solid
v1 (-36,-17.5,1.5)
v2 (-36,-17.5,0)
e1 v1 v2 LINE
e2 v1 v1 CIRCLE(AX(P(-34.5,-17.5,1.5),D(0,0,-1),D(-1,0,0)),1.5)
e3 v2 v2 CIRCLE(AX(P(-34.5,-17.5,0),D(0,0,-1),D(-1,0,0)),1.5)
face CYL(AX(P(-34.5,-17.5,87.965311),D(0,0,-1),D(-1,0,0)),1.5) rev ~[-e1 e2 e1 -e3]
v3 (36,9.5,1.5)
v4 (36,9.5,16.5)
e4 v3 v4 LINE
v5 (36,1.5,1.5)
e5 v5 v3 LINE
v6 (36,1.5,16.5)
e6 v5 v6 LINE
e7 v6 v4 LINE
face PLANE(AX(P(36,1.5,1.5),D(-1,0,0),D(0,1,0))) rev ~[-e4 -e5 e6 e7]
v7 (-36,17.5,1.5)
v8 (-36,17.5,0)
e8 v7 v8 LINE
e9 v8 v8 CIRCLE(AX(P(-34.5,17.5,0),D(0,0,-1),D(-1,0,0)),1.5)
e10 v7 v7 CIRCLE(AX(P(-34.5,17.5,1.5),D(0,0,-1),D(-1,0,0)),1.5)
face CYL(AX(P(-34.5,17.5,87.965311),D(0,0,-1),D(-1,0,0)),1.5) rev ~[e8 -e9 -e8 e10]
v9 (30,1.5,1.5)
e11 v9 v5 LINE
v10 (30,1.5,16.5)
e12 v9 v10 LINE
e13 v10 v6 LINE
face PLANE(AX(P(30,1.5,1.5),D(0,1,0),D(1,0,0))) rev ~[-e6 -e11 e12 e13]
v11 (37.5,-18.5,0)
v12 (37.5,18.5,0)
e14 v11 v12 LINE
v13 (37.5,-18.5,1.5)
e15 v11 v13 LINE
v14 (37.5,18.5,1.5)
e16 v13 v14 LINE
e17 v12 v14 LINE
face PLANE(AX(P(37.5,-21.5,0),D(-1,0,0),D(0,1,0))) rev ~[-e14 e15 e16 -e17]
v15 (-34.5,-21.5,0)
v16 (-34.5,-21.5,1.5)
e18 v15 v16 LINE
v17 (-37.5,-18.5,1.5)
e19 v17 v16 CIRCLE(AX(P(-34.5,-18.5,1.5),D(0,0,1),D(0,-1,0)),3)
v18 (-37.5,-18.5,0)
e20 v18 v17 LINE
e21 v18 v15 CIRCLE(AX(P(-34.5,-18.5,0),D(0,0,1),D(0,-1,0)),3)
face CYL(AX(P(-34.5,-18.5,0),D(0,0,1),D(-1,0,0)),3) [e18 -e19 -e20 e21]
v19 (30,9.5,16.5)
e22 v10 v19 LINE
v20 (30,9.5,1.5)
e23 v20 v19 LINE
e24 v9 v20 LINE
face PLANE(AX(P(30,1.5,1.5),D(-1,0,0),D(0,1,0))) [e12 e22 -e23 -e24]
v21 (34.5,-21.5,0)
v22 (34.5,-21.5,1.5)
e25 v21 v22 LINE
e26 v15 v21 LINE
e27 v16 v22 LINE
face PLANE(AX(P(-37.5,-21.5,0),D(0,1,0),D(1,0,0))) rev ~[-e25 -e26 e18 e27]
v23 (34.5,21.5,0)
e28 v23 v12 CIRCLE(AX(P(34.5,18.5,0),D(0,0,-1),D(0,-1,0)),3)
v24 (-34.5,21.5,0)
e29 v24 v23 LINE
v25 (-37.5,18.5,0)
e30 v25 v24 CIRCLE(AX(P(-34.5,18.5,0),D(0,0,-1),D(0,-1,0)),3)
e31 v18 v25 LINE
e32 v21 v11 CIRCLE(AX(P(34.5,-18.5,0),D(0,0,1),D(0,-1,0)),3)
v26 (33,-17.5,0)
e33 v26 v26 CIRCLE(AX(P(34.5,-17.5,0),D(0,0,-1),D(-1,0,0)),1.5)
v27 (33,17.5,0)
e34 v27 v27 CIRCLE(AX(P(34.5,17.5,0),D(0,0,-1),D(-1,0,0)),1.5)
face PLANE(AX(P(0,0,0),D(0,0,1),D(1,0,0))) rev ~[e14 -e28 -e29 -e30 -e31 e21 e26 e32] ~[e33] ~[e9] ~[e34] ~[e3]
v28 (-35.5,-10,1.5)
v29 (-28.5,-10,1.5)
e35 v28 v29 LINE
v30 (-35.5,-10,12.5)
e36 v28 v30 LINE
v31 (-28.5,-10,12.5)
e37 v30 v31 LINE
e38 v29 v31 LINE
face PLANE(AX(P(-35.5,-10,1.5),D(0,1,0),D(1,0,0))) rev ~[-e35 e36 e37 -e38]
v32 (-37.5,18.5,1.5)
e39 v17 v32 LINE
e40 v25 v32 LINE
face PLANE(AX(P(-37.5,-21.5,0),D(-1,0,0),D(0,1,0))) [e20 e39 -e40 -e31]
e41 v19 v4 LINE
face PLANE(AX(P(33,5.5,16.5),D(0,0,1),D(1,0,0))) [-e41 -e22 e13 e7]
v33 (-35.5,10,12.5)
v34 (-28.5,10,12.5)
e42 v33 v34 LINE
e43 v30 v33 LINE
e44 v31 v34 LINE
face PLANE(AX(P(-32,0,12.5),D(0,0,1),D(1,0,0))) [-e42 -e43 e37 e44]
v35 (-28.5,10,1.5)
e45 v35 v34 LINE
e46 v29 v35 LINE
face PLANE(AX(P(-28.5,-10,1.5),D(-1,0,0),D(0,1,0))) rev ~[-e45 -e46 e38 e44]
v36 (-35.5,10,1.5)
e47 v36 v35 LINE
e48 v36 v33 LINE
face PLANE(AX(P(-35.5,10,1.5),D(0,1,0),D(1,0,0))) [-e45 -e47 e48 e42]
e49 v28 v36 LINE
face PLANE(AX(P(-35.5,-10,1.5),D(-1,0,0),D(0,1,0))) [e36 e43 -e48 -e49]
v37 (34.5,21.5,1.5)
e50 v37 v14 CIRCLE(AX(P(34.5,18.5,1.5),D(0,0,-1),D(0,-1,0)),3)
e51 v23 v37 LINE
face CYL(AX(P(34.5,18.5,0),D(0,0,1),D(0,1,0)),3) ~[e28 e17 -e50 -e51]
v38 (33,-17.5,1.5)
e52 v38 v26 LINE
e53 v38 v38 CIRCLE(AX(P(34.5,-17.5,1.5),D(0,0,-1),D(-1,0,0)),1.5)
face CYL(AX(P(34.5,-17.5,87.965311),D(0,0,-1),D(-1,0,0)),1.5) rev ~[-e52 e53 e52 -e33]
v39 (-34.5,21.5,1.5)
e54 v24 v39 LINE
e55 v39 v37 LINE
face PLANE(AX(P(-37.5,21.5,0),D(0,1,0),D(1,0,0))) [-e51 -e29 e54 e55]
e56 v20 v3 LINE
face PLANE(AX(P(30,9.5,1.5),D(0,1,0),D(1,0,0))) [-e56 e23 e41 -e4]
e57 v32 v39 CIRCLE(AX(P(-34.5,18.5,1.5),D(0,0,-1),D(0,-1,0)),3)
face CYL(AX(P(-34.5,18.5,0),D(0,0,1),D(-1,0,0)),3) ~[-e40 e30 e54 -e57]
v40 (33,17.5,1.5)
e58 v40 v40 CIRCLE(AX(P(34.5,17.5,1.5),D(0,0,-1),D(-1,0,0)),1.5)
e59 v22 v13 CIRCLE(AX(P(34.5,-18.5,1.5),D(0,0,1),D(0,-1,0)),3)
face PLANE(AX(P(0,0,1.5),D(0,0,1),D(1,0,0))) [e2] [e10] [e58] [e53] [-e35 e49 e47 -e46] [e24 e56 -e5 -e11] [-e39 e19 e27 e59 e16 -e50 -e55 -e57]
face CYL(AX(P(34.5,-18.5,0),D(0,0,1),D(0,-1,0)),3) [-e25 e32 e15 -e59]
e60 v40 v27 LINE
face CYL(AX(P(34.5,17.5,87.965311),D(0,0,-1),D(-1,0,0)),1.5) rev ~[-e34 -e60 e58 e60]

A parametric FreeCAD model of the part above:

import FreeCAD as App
import Part
import Sketcher
from FreeCAD import Vector
Q = App.Units.Quantity


def edges_at(feature, points):
    """Names of the edges that pass closest to the given points."""
    edges = feature.Shape.Edges
    near = lambda p: min(range(len(edges)), key=lambda i: edges[i].distToShape(Part.Vertex(*p))[0])
    return sorted({f"Edge{near(p) + 1}" for p in points})


def add_polygon(sketch, points):
    """Adds a closed chain of lines whose ends are joined by coincident constraints."""
    first, n = sketch.GeometryCount, len(points)
    for a, b in zip(points, points[1:] + points[:1]):
        sketch.addGeometry(Part.LineSegment(App.Vector(*a, 0), App.Vector(*b, 0)), False)
    for i in range(n):
        sketch.addConstraint(Sketcher.Constraint("Coincident", first + i, 2, first + (i + 1) % n, 1))

doc = App.newDocument("Part")
body = doc.addObject("PartDesign::Body", "Body")

# Sketch on XY plane
sketch1 = body.newObject("Sketcher::SketchObject", "Sketch")
sketch1.AttachmentSupport = (doc.getObject("XY_Plane"), [""])
sketch1.MapMode = "FlatFace"
add_polygon(sketch1, [(-38, 22), (-38, -22), (38, -22), (38, 22)])  # lines 0-3
sketch1.addConstraint([
    Sketcher.Constraint("Vertical", 0),
    Sketcher.Constraint("Horizontal", 1),
    Sketcher.Constraint("Vertical", 2),
    Sketcher.Constraint("Horizontal", 3),
    Sketcher.Constraint("Symmetric", 0, 2, 2, 2, -1, 1),
    Sketcher.Constraint("DistanceX", 1, 1, 1, 2, Q("75 mm")),
    Sketcher.Constraint("DistanceY", 0, 2, 0, 1, Q("43 mm")),
])
pad1 = body.newObject("PartDesign::Pad", "Pad")
pad1.Profile = sketch1
pad1.Length = 1.5

# Sketch on XY plane
sketch2 = body.newObject("Sketcher::SketchObject", "Sketch001")
sketch2.AttachmentSupport = (doc.getObject("XY_Plane"), [""])
sketch2.MapMode = "FlatFace"
sketch2.AttachmentOffset = App.Placement(Vector(0, 0, 1.5), App.Rotation())
sketch2.addGeometry([
    Part.Circle(Vector(-34.5, 17.5, 0), Vector(0, 0, 1), 1.5),
    Part.Circle(Vector(34.5, 17.5, 0), Vector(0, 0, 1), 1.5),
    Part.Circle(Vector(34.5, -17.5, 0), Vector(0, 0, 1), 1.5),
    Part.Circle(Vector(-34.5, -17.5, 0), Vector(0, 0, 1), 1.5),
], False)
sketch2.addConstraint([
    Sketcher.Constraint("Equal", 0, 1),
    Sketcher.Constraint("Equal", 1, 2),
    Sketcher.Constraint("Equal", 2, 3),
    Sketcher.Constraint("Symmetric", 0, 3, 2, 3, -1, 1),
    Sketcher.Constraint("Symmetric", 1, 3, 3, 3, -1, 1),
    Sketcher.Constraint("Symmetric", 0, 3, 1, 3, -2),
    Sketcher.Constraint("Diameter", 0, Q("3 mm")),
    Sketcher.Constraint("DistanceX", 0, 3, 1, 3, Q("69 mm")),
    Sketcher.Constraint("DistanceY", 2, 3, 1, 3, Q("35 mm")),
])
doc.recompute()
hole = body.newObject("PartDesign::Hole", "Hole")
hole.Profile = sketch2
hole.ThreadType = "None"
hole.Diameter = 3
hole.DepthType = "ThroughAll"
doc.recompute()

fillet = body.newObject("PartDesign::Fillet", "Fillet")
fillet.Base = (hole, edges_at(hole, [
    (-37.5, -21.5, 0.75),
    (37.5, -21.5, 0.75),
    (-37.5, 21.5, 0.75),
    (37.5, 21.5, 0.75),
]))
fillet.Radius = 3

# Sketch on XY plane
sketch3 = body.newObject("Sketcher::SketchObject", "Sketch002")
sketch3.AttachmentSupport = (doc.getObject("XY_Plane"), [""])
sketch3.MapMode = "FlatFace"
sketch3.AttachmentOffset = App.Placement(Vector(0, 0, 1.5), App.Rotation())
add_polygon(sketch3, [(-36, 10), (-36, -10), (-28, -10), (-28, 10)])  # lines 0-3
sketch3.addConstraint([
    Sketcher.Constraint("Vertical", 0),
    Sketcher.Constraint("Horizontal", 1),
    Sketcher.Constraint("Vertical", 2),
    Sketcher.Constraint("Horizontal", 3),
    Sketcher.Constraint("DistanceX", 1, 1, 1, 2, Q("7 mm")),
    Sketcher.Constraint("DistanceY", 0, 2, 0, 1, Q("20 mm")),
    Sketcher.Constraint("DistanceY", 0, 2, -1, 1, Q("10 mm")),
    Sketcher.Constraint("DistanceX", 0, 2, -1, 1, Q("35.5 mm")),
])
pad2 = body.newObject("PartDesign::Pad", "Pad001")
pad2.Profile = sketch3
pad2.Length = 11

# Sketch on XY plane
sketch4 = body.newObject("Sketcher::SketchObject", "Sketch003")
sketch4.AttachmentSupport = (doc.getObject("XY_Plane"), [""])
sketch4.MapMode = "FlatFace"
sketch4.AttachmentOffset = App.Placement(Vector(0, 0, 1.5), App.Rotation())
add_polygon(sketch4, [(30, 10), (30, 2), (36, 2), (36, 10)])  # lines 0-3
sketch4.addConstraint([
    Sketcher.Constraint("Vertical", 0),
    Sketcher.Constraint("Horizontal", 1),
    Sketcher.Constraint("Vertical", 2),
    Sketcher.Constraint("Horizontal", 3),
    Sketcher.Constraint("DistanceX", 1, 1, 1, 2, Q("6 mm")),
    Sketcher.Constraint("DistanceY", 0, 2, 0, 1, Q("8 mm")),
    Sketcher.Constraint("DistanceX", -1, 1, 0, 2, Q("30 mm")),
    Sketcher.Constraint("DistanceY", -1, 1, 0, 2, Q("1.5 mm")),
])
pad3 = body.newObject("PartDesign::Pad", "Pad002")
pad3.Profile = sketch4
pad3.Length = 15

doc.recompute()
